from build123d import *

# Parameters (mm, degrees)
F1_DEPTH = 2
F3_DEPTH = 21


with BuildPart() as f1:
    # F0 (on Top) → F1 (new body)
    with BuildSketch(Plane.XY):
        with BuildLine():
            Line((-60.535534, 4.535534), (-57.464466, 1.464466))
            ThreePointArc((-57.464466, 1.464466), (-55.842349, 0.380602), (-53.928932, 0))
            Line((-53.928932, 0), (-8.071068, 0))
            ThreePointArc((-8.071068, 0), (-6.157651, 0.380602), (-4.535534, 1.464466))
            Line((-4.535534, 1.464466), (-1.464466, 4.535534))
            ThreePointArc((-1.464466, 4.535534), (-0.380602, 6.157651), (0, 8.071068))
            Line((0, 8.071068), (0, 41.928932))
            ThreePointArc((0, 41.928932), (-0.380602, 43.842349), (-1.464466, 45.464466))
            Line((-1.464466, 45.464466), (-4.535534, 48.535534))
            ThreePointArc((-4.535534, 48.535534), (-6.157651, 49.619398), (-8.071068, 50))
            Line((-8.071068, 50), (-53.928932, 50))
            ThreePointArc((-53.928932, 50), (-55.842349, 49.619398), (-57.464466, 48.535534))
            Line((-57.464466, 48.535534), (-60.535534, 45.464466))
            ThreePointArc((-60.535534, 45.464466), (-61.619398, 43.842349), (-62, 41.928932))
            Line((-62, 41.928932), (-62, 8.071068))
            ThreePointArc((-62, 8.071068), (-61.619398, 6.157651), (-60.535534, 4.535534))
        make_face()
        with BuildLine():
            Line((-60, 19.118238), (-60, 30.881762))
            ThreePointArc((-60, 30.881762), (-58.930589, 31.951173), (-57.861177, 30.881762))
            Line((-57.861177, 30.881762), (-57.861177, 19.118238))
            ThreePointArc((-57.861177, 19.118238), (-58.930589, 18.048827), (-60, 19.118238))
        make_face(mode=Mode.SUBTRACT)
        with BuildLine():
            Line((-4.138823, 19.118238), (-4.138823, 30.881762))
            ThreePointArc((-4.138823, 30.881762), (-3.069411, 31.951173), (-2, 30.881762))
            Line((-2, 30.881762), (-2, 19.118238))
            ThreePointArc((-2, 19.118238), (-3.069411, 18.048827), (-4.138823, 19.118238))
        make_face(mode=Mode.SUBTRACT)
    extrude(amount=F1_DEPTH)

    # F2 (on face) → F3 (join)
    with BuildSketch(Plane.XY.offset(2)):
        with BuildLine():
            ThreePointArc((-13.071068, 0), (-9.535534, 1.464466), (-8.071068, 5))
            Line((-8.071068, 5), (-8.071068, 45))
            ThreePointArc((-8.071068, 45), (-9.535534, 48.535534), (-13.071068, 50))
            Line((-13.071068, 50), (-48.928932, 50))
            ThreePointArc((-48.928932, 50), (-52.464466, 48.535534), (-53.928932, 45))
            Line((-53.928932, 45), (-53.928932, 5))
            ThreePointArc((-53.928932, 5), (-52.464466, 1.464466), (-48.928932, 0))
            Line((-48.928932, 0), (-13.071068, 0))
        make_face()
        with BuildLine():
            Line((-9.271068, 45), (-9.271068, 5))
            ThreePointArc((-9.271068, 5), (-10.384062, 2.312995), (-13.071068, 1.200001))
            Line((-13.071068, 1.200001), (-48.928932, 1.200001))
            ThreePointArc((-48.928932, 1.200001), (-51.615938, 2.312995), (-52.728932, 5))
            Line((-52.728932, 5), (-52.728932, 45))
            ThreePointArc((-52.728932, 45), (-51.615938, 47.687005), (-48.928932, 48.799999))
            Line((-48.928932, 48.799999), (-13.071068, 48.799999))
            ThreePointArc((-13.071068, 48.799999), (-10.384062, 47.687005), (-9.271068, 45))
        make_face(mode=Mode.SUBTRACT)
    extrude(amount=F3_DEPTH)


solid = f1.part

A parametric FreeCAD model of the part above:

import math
import FreeCAD as App
import Part
import Sketcher

V = App.Vector

doc = App.newDocument("Part")
params = doc.addObject("Spreadsheet::Sheet", "Params")
for row, (alias, value) in enumerate([
    ("pad1_length", "2 mm"),
    ("sketch2_radius", "5 mm"),
    ("sketch2_radius2", "3.799999 mm"),
    ("sketch2_height", "40 mm"),
    ("pad2_length", "21 mm"),
], start=1):
    params.set(f"A{row}", alias)
    params.set(f"B{row}", "=" + value)
    params.setAlias(f"B{row}", alias)

body = doc.addObject("PartDesign::Body", "Body")

sketch1 = body.newObject("Sketcher::SketchObject", "Sketch")
sketch1.AttachmentSupport = (doc.getObject("XY_Plane"), [""])
sketch1.MapMode = "FlatFace"
sketch1.addGeometry([
    Part.LineSegment(V(-60.5, 4.5, 0), V(-57.5, 1.5, 0)),
    Part.ArcOfCircle(Part.Circle(V(-53.9, 5, 0), V(0, 0, 1), 5), math.radians(-135), math.radians(-90)),
    Part.LineSegment(V(-53.9, 0, 0), V(-8.1, 0, 0)),
    Part.ArcOfCircle(Part.Circle(V(-8.1, 5, 0), V(0, 0, 1), 5), math.radians(-90), math.radians(-45)),
    Part.LineSegment(V(-4.5, 1.5, 0), V(-1.5, 4.5, 0)),
    Part.ArcOfCircle(Part.Circle(V(-5, 8.1, 0), V(0, 0, 1), 5), math.radians(-45), math.radians(0)),
    Part.LineSegment(V(0, 8.1, 0), V(0, 41.9, 0)),
    Part.ArcOfCircle(Part.Circle(V(-5, 41.9, 0), V(0, 0, 1), 5), math.radians(0), math.radians(45)),
    Part.LineSegment(V(-1.5, 45.5, 0), V(-4.5, 48.5, 0)),
    Part.ArcOfCircle(Part.Circle(V(-8.1, 45, 0), V(0, 0, 1), 5), math.radians(45), math.radians(90)),
    Part.LineSegment(V(-8.1, 50, 0), V(-53.9, 50, 0)),
    Part.ArcOfCircle(Part.Circle(V(-53.9, 45, 0), V(0, 0, 1), 5), math.radians(90), math.radians(135)),
    Part.LineSegment(V(-57.5, 48.5, 0), V(-60.5, 45.5, 0)),
    Part.ArcOfCircle(Part.Circle(V(-57, 41.9, 0), V(0, 0, 1), 5), math.radians(135), math.radians(180)),
    Part.LineSegment(V(-62, 41.9, 0), V(-62, 8.1, 0)),
    Part.ArcOfCircle(Part.Circle(V(-57, 8.1, 0), V(0, 0, 1), 5), math.radians(180), math.radians(225)),
    Part.ArcOfCircle(Part.Circle(V(-58.9, 19.1, 0), V(0, 0, 1), 1.1), math.radians(-180), math.radians(0)),
    Part.LineSegment(V(-60, 19.1, 0), V(-60, 30.9, 0)),
    Part.ArcOfCircle(Part.Circle(V(-58.9, 30.9, 0), V(0, 0, 1), 1.1), math.radians(0), math.radians(180)),
    Part.LineSegment(V(-57.9, 30.9, 0), V(-57.9, 19.1, 0)),
    Part.ArcOfCircle(Part.Circle(V(-3.1, 19.1, 0), V(0, 0, 1), 1.1), math.radians(-180), math.radians(0)),
    Part.LineSegment(V(-4.1, 19.1, 0), V(-4.1, 30.9, 0)),
    Part.ArcOfCircle(Part.Circle(V(-3.1, 30.9, 0), V(0, 0, 1), 1.1), math.radians(0), math.radians(180)),
    Part.LineSegment(V(-2, 30.9, 0), V(-2, 19.1, 0)),
], False)
sketch1.addConstraint([
    Sketcher.Constraint("Tangent", 0, 2, 1, 1),
    Sketcher.Constraint("Tangent", 1, 2, 2, 1),
    Sketcher.Constraint("Tangent", 2, 2, 3, 1),
    Sketcher.Constraint("Tangent", 3, 2, 4, 1),
    Sketcher.Constraint("Tangent", 4, 2, 5, 1),
    Sketcher.Constraint("Tangent", 5, 2, 6, 1),
    Sketcher.Constraint("Tangent", 6, 2, 7, 1),
    Sketcher.Constraint("Tangent", 7, 2, 8, 1),
    Sketcher.Constraint("Tangent", 8, 2, 9, 1),
    Sketcher.Constraint("Tangent", 9, 2, 10, 1),
    Sketcher.Constraint("Tangent", 10, 2, 11, 1),
    Sketcher.Constraint("Tangent", 11, 2, 12, 1),
    Sketcher.Constraint("Tangent", 12, 2, 13, 1),
    Sketcher.Constraint("Tangent", 13, 2, 14, 1),
    Sketcher.Constraint("Tangent", 14, 2, 15, 1),
    Sketcher.Constraint("Tangent", 15, 2, 0, 1),
    Sketcher.Constraint("Tangent", 16, 1, 17, 1),
    Sketcher.Constraint("Tangent", 17, 2, 18, 2),
    Sketcher.Constraint("Tangent", 18, 1, 19, 1),
    Sketcher.Constraint("Tangent", 19, 2, 16, 2),
    Sketcher.Constraint("Tangent", 20, 1, 21, 1),
    Sketcher.Constraint("Tangent", 21, 2, 22, 2),
    Sketcher.Constraint("Tangent", 22, 1, 23, 1),
    Sketcher.Constraint("Tangent", 23, 2, 20, 2),
    Sketcher.Constraint("Horizontal", 2),
    Sketcher.Constraint("Vertical", 6),
    Sketcher.Constraint("Horizontal", 10),
    Sketcher.Constraint("Vertical", 14),
    Sketcher.Constraint("Vertical", 17),
    Sketcher.Constraint("Vertical", 19),
    Sketcher.Constraint("Vertical", 21),
    Sketcher.Constraint("Vertical", 23),
    Sketcher.Constraint("Equal", 1, 3),
    Sketcher.Constraint("Equal", 3, 5),
    Sketcher.Constraint("Equal", 5, 7),
    Sketcher.Constraint("Equal", 7, 9),
    Sketcher.Constraint("Equal", 9, 11),
    Sketcher.Constraint("Equal", 11, 13),
    Sketcher.Constraint("Equal", 13, 15),
    Sketcher.Constraint("Equal", 18, 20),
    Sketcher.Constraint("PointOnObject", 1, 2, -1),
    Sketcher.Constraint("PointOnObject", 5, 2, -2),
    Sketcher.Constraint("Perpendicular", 0, 4),
    Sketcher.Constraint("Perpendicular", 4, 8),
    Sketcher.Constraint("Perpendicular", 8, 12),
    Sketcher.Constraint("Horizontal", 7, 3, 13, 3),
    Sketcher.Constraint("Horizontal", 5, 3, 15, 3),
    Sketcher.Constraint("Horizontal", 16, 3, 20, 3),
    Sketcher.Constraint("Horizontal", 18, 3, 22, 3),
    Sketcher.Constraint("Horizontal", 0, 2, 3, 2),
    Sketcher.Constraint("Vertical", 3, 3, 9, 3),
    Sketcher.Constraint("DistanceY", -1, 1, 9, 2, 50.0),
    Sketcher.Constraint("DistanceX", 13, 2, -1, 1, 62.0),
    Sketcher.Constraint("DistanceX", 16, 1, -1, 1, 60.0),
    Sketcher.Constraint("DistanceX", 22, 1, -1, 1, 2.0),
    Sketcher.Constraint("Radius", 16, 1.069411),
    Sketcher.Constraint("Radius", 1, 4.999998),
    Sketcher.Constraint("DistanceY", 0, 2, 15, 3, 6.606601),
    Sketcher.Constraint("DistanceY", 17, 1, 17, 2, 11.763524),
    Sketcher.Constraint("DistanceY", -1, 1, 16, 3, 19.118239),
])
pad1 = body.newObject("PartDesign::Pad", "Pad")
pad1.Profile = sketch1
pad1.setExpression("Length", "Params.pad1_length")

sketch2 = body.newObject("Sketcher::SketchObject", "Sketch001")
sketch2.AttachmentSupport = (doc.getObject("XY_Plane"), [""])
sketch2.MapMode = "FlatFace"
sketch2.AttachmentOffset = App.Placement(V(0, 0, 2), App.Rotation())
sketch2.addGeometry([
    Part.ArcOfCircle(Part.Circle(V(-13.1, 5, 0), V(0, 0, 1), 5), math.radians(-90), math.radians(0)),
    Part.LineSegment(V(-8.1, 5, 0), V(-8.1, 45, 0)),
    Part.ArcOfCircle(Part.Circle(V(-13.1, 45, 0), V(0, 0, 1), 5), math.radians(0), math.radians(90)),
    Part.LineSegment(V(-13.1, 50, 0), V(-48.9, 50, 0)),
    Part.ArcOfCircle(Part.Circle(V(-48.9, 45, 0), V(0, 0, 1), 5), math.radians(90), math.radians(180)),
    Part.LineSegment(V(-53.9, 45, 0), V(-53.9, 5, 0)),
    Part.ArcOfCircle(Part.Circle(V(-48.9, 5, 0), V(0, 0, 1), 5), math.radians(180), math.radians(270)),
    Part.LineSegment(V(-48.9, 0, 0), V(-13.1, 0, 0)),
    Part.ArcOfCircle(Part.Circle(V(-13.1, 45, 0), V(0, 0, 1), 3.8), math.radians(0), math.radians(90)),
    Part.LineSegment(V(-9.3, 45, 0), V(-9.3, 5, 0)),
    Part.ArcOfCircle(Part.Circle(V(-13.1, 5, 0), V(0, 0, 1), 3.8), math.radians(-90), math.radians(0)),
    Part.LineSegment(V(-13.1, 1.2, 0), V(-48.9, 1.2, 0)),
    Part.ArcOfCircle(Part.Circle(V(-48.9, 5, 0), V(0, 0, 1), 3.8), math.radians(-180), math.radians(-90)),
    Part.LineSegment(V(-52.7, 5, 0), V(-52.7, 45, 0)),
    Part.ArcOfCircle(Part.Circle(V(-48.9, 45, 0), V(0, 0, 1), 3.8), math.radians(90), math.radians(180)),
    Part.LineSegment(V(-48.9, 48.8, 0), V(-13.1, 48.8, 0)),
], False)
sketch2.addConstraint([
    Sketcher.Constraint("Tangent", 0, 2, 1, 1),
    Sketcher.Constraint("Tangent", 1, 2, 2, 1),
    Sketcher.Constraint("Tangent", 2, 2, 3, 1),
    Sketcher.Constraint("Tangent", 3, 2, 4, 1),
    Sketcher.Constraint("Tangent", 4, 2, 5, 1),
    Sketcher.Constraint("Tangent", 5, 2, 6, 1),
    Sketcher.Constraint("Tangent", 6, 2, 7, 1),
    Sketcher.Constraint("Tangent", 7, 2, 0, 1),
    Sketcher.Constraint("Tangent", 8, 1, 9, 1),
    Sketcher.Constraint("Tangent", 9, 2, 10, 2),
    Sketcher.Constraint("Tangent", 10, 1, 11, 1),
    Sketcher.Constraint("Tangent", 11, 2, 12, 2),
    Sketcher.Constraint("Tangent", 12, 1, 13, 1),
    Sketcher.Constraint("Tangent", 13, 2, 14, 2),
    Sketcher.Constraint("Tangent", 14, 1, 15, 1),
    Sketcher.Constraint("Tangent", 15, 2, 8, 2),
    Sketcher.Constraint("Vertical", 1),
    Sketcher.Constraint("Horizontal", 3),
    Sketcher.Constraint("Vertical", 5),
    Sketcher.Constraint("Horizontal", 7),
    Sketcher.Constraint("Vertical", 9),
    Sketcher.Constraint("Horizontal", 11),
    Sketcher.Constraint("Vertical", 13),
    Sketcher.Constraint("Horizontal", 15),
    Sketcher.Constraint("Coincident", 8, 3, 2, 3),
    Sketcher.Constraint("Coincident", 10, 3, 0, 3),
    Sketcher.Constraint("Coincident", 12, 3, 6, 3),
    Sketcher.Constraint("Equal", 0, 2),
    Sketcher.Constraint("Equal", 2, 4),
    Sketcher.Constraint("Equal", 4, 6),
    Sketcher.Constraint("Equal", 12, 14),
    Sketcher.Constraint("PointOnObject", 6, 2, -1),
    Sketcher.Constraint("Radius", 0, 5.0),
    Sketcher.Constraint("Radius", 8, 3.799999),
    Sketcher.Constraint("DistanceY", 1, 1, 1, 2, 40.0),
    Sketcher.Constraint("DistanceX", 3, 2, 3, 1, 35.857864),
    Sketcher.Constraint("DistanceX", 0, 2, -1, 1, 8.071068),
])
sketch2.setExpression("Constraints[32]", "Params.sketch2_radius")
sketch2.setExpression("Constraints[33]", "Params.sketch2_radius2")
sketch2.setExpression("Constraints[34]", "Params.sketch2_height")
pad2 = body.newObject("PartDesign::Pad", "Pad001")
pad2.Profile = sketch2
pad2.setExpression("Length", "Params.pad2_length")

doc.recompute()
